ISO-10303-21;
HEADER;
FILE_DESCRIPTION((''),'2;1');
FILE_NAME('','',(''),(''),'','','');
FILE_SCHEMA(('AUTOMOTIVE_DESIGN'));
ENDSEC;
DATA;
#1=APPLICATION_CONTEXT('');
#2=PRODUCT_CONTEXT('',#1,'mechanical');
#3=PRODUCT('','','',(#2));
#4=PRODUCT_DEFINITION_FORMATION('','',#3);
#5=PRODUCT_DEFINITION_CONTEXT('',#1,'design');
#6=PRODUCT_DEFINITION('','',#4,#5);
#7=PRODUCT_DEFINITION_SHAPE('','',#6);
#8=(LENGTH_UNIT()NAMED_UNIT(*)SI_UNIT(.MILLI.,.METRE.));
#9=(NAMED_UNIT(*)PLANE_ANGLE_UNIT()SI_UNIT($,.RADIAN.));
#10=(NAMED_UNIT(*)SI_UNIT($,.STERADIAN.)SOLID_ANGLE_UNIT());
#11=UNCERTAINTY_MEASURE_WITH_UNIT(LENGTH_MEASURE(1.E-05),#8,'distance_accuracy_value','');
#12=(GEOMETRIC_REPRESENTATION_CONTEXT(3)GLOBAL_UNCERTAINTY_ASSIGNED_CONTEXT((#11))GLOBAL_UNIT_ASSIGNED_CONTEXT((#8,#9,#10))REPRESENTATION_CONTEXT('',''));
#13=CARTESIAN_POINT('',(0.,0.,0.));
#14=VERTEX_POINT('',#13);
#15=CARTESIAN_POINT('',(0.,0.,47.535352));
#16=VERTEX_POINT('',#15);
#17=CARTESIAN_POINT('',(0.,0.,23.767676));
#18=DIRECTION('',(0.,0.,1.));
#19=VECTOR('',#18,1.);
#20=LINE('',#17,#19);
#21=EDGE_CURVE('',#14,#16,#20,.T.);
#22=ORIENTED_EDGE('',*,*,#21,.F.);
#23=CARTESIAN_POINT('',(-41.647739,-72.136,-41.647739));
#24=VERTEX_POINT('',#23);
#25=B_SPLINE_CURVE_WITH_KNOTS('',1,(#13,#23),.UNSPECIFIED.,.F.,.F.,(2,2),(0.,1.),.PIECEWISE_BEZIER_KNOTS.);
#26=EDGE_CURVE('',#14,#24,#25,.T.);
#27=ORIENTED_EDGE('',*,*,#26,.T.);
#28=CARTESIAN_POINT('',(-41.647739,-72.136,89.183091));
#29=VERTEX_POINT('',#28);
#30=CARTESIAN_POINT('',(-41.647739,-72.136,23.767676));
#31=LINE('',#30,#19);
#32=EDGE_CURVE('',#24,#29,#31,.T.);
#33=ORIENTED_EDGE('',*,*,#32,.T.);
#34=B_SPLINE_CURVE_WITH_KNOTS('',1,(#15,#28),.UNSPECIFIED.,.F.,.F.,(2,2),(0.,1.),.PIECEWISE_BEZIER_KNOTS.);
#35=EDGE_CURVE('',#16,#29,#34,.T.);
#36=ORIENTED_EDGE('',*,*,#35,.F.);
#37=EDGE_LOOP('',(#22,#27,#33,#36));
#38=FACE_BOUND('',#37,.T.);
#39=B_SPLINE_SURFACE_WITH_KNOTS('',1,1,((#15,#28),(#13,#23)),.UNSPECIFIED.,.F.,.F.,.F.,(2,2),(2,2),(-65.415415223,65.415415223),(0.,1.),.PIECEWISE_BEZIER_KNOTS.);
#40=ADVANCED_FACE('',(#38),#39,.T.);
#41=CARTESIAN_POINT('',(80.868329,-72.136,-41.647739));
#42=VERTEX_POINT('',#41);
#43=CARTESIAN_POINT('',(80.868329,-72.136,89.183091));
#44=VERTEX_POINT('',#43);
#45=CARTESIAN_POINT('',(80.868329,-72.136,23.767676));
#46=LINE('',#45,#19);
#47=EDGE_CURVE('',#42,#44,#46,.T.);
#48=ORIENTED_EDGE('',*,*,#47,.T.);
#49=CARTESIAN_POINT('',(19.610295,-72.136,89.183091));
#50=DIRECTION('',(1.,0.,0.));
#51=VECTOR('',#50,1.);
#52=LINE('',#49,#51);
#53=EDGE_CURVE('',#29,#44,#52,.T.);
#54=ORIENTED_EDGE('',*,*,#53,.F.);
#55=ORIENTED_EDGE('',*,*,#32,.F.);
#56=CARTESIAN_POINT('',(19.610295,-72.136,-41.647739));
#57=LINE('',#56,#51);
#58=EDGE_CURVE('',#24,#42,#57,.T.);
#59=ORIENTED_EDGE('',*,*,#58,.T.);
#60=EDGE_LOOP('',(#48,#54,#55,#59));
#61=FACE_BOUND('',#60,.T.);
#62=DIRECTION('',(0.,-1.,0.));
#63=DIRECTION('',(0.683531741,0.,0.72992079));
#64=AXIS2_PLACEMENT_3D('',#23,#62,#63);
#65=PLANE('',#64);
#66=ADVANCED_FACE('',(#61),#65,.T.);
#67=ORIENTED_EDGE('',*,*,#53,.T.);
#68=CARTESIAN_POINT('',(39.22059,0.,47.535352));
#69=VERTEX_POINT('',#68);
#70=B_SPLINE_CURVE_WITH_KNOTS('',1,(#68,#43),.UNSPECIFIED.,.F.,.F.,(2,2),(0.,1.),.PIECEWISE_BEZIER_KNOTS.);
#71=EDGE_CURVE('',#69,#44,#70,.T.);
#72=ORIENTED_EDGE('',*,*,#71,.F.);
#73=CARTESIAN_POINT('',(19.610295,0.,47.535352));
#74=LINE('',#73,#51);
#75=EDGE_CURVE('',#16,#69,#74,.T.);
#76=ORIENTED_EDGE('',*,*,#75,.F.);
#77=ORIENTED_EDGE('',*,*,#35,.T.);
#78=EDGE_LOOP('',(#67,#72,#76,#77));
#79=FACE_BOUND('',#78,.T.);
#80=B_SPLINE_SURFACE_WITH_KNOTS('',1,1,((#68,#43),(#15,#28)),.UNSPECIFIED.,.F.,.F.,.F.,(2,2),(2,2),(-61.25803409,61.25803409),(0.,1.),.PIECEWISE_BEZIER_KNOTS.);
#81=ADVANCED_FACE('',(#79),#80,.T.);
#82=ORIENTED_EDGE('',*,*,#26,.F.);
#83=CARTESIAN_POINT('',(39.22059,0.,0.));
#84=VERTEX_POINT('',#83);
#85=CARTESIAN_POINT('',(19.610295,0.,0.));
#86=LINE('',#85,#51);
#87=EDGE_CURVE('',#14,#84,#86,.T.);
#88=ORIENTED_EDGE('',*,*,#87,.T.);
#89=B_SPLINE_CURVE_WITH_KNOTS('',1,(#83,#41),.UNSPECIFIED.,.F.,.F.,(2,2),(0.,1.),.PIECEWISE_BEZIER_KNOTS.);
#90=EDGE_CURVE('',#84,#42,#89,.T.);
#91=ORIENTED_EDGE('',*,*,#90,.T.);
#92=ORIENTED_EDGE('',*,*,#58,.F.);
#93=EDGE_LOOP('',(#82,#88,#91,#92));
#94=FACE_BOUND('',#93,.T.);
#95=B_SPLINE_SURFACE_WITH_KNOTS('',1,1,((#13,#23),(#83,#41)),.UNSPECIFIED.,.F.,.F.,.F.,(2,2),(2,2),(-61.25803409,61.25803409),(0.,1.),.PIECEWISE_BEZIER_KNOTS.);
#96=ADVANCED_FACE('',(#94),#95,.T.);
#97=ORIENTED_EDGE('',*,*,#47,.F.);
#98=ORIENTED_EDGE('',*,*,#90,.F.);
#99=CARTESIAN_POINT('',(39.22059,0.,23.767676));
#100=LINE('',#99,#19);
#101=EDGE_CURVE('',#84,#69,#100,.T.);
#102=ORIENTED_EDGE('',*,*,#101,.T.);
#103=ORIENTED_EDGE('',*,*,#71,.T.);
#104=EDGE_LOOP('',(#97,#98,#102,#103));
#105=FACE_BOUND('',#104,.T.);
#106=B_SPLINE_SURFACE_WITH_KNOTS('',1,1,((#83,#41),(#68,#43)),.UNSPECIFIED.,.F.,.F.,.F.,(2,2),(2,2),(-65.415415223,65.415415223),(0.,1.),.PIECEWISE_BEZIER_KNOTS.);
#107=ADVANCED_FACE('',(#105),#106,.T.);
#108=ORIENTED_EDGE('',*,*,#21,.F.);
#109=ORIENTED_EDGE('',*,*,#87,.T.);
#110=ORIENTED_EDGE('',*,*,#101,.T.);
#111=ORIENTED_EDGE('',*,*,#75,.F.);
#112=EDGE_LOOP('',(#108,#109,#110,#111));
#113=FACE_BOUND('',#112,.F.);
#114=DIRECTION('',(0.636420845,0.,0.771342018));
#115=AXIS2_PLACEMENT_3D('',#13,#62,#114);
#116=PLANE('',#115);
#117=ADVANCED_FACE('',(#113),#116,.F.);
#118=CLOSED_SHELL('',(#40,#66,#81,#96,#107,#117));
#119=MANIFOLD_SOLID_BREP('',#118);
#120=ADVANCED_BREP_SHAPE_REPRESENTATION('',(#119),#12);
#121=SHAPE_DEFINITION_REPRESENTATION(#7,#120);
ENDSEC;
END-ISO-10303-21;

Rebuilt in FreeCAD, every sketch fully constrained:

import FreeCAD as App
import Part
import Sketcher
Q = App.Units.Quantity


def add_polygon(sketch, points):
    """Adds a closed chain of lines whose ends are joined by coincident constraints."""
    first, n = sketch.GeometryCount, len(points)
    for a, b in zip(points, points[1:] + points[:1]):
        sketch.addGeometry(Part.LineSegment(App.Vector(*a, 0), App.Vector(*b, 0)), False)
    for i in range(n):
        sketch.addConstraint(Sketcher.Constraint("Coincident", first + i, 2, first + (i + 1) % n, 1))

doc = App.newDocument("Part")
body = doc.addObject("PartDesign::Body", "Body")

# Sketch on XZ plane
sketch1 = body.newObject("Sketcher::SketchObject", "Sketch")
sketch1.AttachmentSupport = (doc.getObject("XZ_Plane"), [""])
sketch1.MapMode = "FlatFace"
add_polygon(sketch1, [(0, 48), (0, 0), (39, 0), (39, 48)])  # lines 0-3
sketch1.addConstraint(Sketcher.Constraint("Vertical", 0))
sketch1.addConstraint(Sketcher.Constraint("Horizontal", 1))
sketch1.addConstraint(Sketcher.Constraint("Vertical", 2))
sketch1.addConstraint(Sketcher.Constraint("Horizontal", 3))
sketch1.addConstraint(Sketcher.Constraint("Coincident", 0, 2, -1, 1))
sketch1.addConstraint(Sketcher.Constraint("DistanceX", 1, 1, 1, 2, Q("39.22059 mm")))
sketch1.addConstraint(Sketcher.Constraint("DistanceY", 0, 2, 0, 1, Q("47.535352 mm")))
pad1 = body.newObject("PartDesign::Pad", "Pad")
pad1.Profile = sketch1
pad1.Length = Q("2.84 in")
pad1.TaperAngle = 30

doc.recompute()
